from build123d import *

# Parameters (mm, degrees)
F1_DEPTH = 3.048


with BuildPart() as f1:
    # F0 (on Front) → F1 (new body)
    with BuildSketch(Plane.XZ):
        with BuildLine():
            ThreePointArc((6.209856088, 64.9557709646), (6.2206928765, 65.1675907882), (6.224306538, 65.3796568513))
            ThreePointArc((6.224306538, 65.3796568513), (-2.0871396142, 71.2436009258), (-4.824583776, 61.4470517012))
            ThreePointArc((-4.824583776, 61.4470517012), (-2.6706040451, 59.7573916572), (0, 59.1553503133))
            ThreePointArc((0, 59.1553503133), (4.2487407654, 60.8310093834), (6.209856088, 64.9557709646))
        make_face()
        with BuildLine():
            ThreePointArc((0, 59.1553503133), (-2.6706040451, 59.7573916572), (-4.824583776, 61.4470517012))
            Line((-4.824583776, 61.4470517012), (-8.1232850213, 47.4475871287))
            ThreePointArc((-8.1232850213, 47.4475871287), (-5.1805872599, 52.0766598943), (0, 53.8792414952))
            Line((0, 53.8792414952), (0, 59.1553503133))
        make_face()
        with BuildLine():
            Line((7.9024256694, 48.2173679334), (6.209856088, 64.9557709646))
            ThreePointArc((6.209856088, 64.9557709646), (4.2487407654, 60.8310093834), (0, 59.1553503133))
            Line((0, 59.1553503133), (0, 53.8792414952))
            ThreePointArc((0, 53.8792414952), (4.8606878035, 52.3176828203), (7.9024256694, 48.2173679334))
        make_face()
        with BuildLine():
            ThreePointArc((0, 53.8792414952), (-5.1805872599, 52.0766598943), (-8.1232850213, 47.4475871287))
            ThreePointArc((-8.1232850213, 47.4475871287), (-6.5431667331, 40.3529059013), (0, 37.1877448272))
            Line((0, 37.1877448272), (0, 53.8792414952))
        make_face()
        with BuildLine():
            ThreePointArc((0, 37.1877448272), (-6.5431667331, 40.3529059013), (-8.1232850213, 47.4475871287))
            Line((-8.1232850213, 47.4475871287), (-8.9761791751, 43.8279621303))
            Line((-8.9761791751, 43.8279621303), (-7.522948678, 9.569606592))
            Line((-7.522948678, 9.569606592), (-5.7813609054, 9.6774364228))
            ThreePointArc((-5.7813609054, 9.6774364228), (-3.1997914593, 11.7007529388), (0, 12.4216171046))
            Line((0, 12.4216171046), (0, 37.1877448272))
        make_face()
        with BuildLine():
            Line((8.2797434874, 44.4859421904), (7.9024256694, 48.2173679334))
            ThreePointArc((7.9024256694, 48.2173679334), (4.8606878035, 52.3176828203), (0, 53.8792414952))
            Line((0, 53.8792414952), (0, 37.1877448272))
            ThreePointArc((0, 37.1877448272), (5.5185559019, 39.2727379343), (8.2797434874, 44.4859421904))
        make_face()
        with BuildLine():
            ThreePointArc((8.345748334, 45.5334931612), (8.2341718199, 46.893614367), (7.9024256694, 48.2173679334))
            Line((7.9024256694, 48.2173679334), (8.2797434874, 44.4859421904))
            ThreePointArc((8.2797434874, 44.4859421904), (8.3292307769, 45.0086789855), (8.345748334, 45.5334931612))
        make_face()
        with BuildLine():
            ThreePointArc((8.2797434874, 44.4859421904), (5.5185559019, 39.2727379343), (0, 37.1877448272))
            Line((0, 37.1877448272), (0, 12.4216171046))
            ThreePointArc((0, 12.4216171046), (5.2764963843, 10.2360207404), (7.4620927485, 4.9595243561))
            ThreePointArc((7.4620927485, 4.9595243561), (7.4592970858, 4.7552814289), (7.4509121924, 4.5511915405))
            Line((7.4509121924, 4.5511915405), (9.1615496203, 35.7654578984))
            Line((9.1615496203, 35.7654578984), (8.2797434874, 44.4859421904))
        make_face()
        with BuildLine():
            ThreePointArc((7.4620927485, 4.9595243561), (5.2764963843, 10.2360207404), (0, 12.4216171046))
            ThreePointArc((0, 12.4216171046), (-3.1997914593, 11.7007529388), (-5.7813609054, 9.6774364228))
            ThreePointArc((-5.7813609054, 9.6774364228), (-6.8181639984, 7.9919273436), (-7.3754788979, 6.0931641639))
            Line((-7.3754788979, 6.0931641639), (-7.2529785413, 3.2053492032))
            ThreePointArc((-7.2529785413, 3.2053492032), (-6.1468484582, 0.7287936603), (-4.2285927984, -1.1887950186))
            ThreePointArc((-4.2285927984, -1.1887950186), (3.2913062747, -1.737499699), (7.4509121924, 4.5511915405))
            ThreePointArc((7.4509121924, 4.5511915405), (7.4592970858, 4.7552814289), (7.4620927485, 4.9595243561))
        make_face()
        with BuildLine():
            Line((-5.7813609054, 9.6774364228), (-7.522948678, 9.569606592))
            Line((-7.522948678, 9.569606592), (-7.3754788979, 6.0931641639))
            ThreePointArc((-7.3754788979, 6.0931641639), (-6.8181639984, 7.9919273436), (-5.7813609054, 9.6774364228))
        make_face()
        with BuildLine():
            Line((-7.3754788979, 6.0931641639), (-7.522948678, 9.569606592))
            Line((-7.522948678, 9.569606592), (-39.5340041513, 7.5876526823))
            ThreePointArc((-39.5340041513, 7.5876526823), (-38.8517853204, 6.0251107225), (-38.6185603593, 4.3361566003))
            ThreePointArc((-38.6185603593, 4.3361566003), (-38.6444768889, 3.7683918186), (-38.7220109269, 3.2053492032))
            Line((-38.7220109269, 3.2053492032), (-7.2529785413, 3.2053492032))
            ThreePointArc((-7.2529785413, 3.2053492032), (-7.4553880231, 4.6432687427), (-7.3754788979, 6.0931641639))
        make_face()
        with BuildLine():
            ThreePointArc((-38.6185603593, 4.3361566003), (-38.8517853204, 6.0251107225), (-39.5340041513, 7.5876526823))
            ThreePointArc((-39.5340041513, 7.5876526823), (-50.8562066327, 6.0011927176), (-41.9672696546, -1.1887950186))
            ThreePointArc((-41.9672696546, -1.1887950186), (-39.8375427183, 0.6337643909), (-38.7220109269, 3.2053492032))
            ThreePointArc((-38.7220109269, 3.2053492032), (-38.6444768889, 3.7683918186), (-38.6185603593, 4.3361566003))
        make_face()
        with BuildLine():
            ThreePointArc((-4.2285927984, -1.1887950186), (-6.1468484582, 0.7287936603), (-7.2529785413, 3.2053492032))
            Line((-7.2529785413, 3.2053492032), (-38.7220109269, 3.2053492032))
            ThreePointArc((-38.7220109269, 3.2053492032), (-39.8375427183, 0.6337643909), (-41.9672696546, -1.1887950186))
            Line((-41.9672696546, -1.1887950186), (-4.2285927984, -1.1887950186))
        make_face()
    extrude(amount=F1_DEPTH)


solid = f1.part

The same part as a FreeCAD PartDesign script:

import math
import FreeCAD as App
import Part
import Sketcher

V = App.Vector
Q = App.Units.Quantity

doc = App.newDocument("Part")
body = doc.addObject("PartDesign::Body", "Body")

sketch1 = body.newObject("Sketcher::SketchObject", "Sketch")
sketch1.AttachmentSupport = (doc.getObject("XZ_Plane"), [""])
sketch1.MapMode = "FlatFace"
sketch1.addGeometry(Part.ArcOfCircle(Part.Circle(V(-44.850655, 4.336157, 0), V(0, 0, 1), 6.232094), math.radians(31.448643), math.radians(297.559345)), False)
sketch1.addGeometry(Part.LineSegment(V(-41.96727, -1.188795, 0), V(-4.228593, -1.188795, 0)), False)
sketch1.addGeometry(Part.ArcOfCircle(Part.Circle(V(0, 4.959524, 0), V(0, 0, 1), 7.462093), math.radians(-124.518793), math.radians(-3.136846)), False)
sketch1.addGeometry(Part.LineSegment(V(7.450912, 4.551192, 0), V(9.16155, 35.765458, 0)), False)
sketch1.addGeometry(Part.LineSegment(V(9.16155, 35.765458, 0), V(8.279743, 44.485942, 0)), False)
sketch1.addGeometry(Part.ArcOfCircle(Part.Circle(V(0, 45.533493, 0), V(0, 0, 1), 8.345748), math.radians(-7.210735), math.radians(0)), False)
sketch1.addGeometry(Part.ArcOfCircle(Part.Circle(V(0, 45.533493, 0), V(0, 0, 1), 8.345748), math.radians(0), math.radians(18.758859)), False)
sketch1.addGeometry(Part.LineSegment(V(7.902426, 48.217368, 0), V(6.209856, 64.955771, 0)), False)
sketch1.addGeometry(Part.ArcOfCircle(Part.Circle(V(0, 65.379657, 0), V(0, 0, 1), 6.224307), math.radians(-3.904963), math.radians(0)), False)
sketch1.addGeometry(Part.ArcOfCircle(Part.Circle(V(0, 65.379657, 0), V(0, 0, 1), 6.224307), math.radians(0), math.radians(219.184097)), False)
sketch1.addGeometry(Part.LineSegment(V(-4.824584, 61.447052, 0), V(-8.123285, 47.447587, 0)), False)
sketch1.addGeometry(Part.LineSegment(V(-8.123285, 47.447587, 0), V(-8.976179, 43.827962, 0)), False)
sketch1.addGeometry(Part.LineSegment(V(-8.976179, 43.827962, 0), V(-7.522949, 9.569607, 0)), False)
sketch1.addGeometry(Part.LineSegment(V(-7.522949, 9.569607, 0), V(-39.534004, 7.587653, 0)), False)
sketch1.addGeometry(Part.LineSegment(V(-7.375479, 6.093164, 0), V(-7.252979, 3.205349, 0)), False)
sketch1.addGeometry(Part.ArcOfCircle(Part.Circle(V(0, 4.959524, 0), V(0, 0, 1), 7.462093), math.radians(171.2618), math.radians(193.596231)), False)
sketch1.addConstraint(Sketcher.Constraint("Coincident", 0, 2, 1, 1))
sketch1.addConstraint(Sketcher.Constraint("Coincident", 1, 2, 2, 1))
sketch1.addConstraint(Sketcher.Constraint("Coincident", 2, 2, 3, 1))
sketch1.addConstraint(Sketcher.Constraint("Coincident", 3, 2, 4, 1))
sketch1.addConstraint(Sketcher.Constraint("Coincident", 4, 2, 5, 1))
sketch1.addConstraint(Sketcher.Constraint("Coincident", 5, 2, 6, 1))
sketch1.addConstraint(Sketcher.Constraint("Coincident", 6, 2, 7, 1))
sketch1.addConstraint(Sketcher.Constraint("Coincident", 7, 2, 8, 1))
sketch1.addConstraint(Sketcher.Constraint("Coincident", 8, 2, 9, 1))
sketch1.addConstraint(Sketcher.Constraint("Coincident", 9, 2, 10, 1))
sketch1.addConstraint(Sketcher.Constraint("Coincident", 10, 2, 11, 1))
sketch1.addConstraint(Sketcher.Constraint("Coincident", 11, 2, 12, 1))
sketch1.addConstraint(Sketcher.Constraint("Coincident", 12, 2, 13, 1))
sketch1.addConstraint(Sketcher.Constraint("Coincident", 13, 2, 0, 1))
sketch1.addConstraint(Sketcher.Constraint("Coincident", 14, 1, 15, 1))
sketch1.addConstraint(Sketcher.Constraint("Coincident", 15, 2, 14, 2))
sketch1.addConstraint(Sketcher.Constraint("Horizontal", 1))
sketch1.addConstraint(Sketcher.Constraint("Coincident", 6, 3, 5, 3))
sketch1.addConstraint(Sketcher.Constraint("Coincident", 9, 3, 8, 3))
sketch1.addConstraint(Sketcher.Constraint("Coincident", 15, 3, 2, 3))
sketch1.addConstraint(Sketcher.Constraint("PointOnObject", 2, 3, -2))
sketch1.addConstraint(Sketcher.Constraint("PointOnObject", 5, 3, -2))
sketch1.addConstraint(Sketcher.Constraint("PointOnObject", 8, 3, -2))
sketch1.addConstraint(Sketcher.Constraint("Radius", 5, 8.345748))
sketch1.addConstraint(Sketcher.Constraint("Radius", 0, 6.232094))
sketch1.addConstraint(Sketcher.Constraint("Radius", 2, 7.462093))
sketch1.addConstraint(Sketcher.Constraint("Radius", 8, 6.224307))
sketch1.addConstraint(Sketcher.Constraint("Radius", 15, 7.462093))
sketch1.addConstraint(Sketcher.Constraint("DistanceY", 0, 3, 8, 3, 61.0435))
sketch1.addConstraint(Sketcher.Constraint("DistanceY", 2, 2, 6, 3, 40.982302))
sketch1.addConstraint(Sketcher.Constraint("DistanceY", 3, 2, 8, 3, 29.614199))
sketch1.addConstraint(Sketcher.Constraint("DistanceX", 5, 2, 3, 2, 0.815801))
sketch1.addConstraint(Sketcher.Constraint("DistanceX", 10, 2, 9, 2, 3.298701))
sketch1.addConstraint(Sketcher.Constraint("DistanceY", 1, 2, 12, 2, 10.758402))
sketch1.addConstraint(Sketcher.Constraint("DistanceX", 12, 2, 3, 2, 16.684498))
sketch1.addConstraint(Sketcher.Constraint("DistanceX", 14, 1, 15, 2, 0.1225))
sketch1.addConstraint(Sketcher.Constraint("Distance", 7, 16.823761))
sketch1.addConstraint(Sketcher.Constraint("Distance", 11, 3.718752))
sketch1.addConstraint(Sketcher.Constraint("DistanceX", 1, 1, 1, 2, 37.738677))
sketch1.addConstraint(Sketcher.Constraint("DistanceX", 0, 2, -1, 1, 41.96727))
sketch1.addConstraint(Sketcher.Constraint("DistanceY", -1, 1, 2, 2, 4.551192))
sketch1.addConstraint(Sketcher.Constraint("DistanceY", -1, 1, 7, 2, 64.955771))
sketch1.addConstraint(Sketcher.Constraint("DistanceY", -1, 1, 9, 2, 61.447052))
sketch1.addConstraint(Sketcher.Constraint("DistanceX", 11, 2, -1, 1, 8.976179))
sketch1.addConstraint(Sketcher.Constraint("DistanceX", 14, 1, -1, 1, 7.375479))
sketch1.addConstraint(Sketcher.Constraint("DistanceY", -1, 1, 15, 2, 3.205349))
sketch1.addConstraint(Sketcher.Constraint("DistanceY", 0, 2, 0, 3, 5.524952))
sketch1.addConstraint(Sketcher.Constraint("DistanceY", 4, 2, 6, 3, 1.047551))
sketch1.addConstraint(Sketcher.Constraint("DistanceY", 4, 2, 5, 2, 1.047551))
sketch1.addConstraint(Sketcher.Constraint("DistanceY", 6, 2, 8, 2, 17.162289))
sketch1.addConstraint(Sketcher.Constraint("DistanceY", 10, 2, 6, 2, 0.769781))
sketch1.addConstraint(Sketcher.Constraint("DistanceX", 0, 3, 13, 2, 5.316651))
pad1 = body.newObject("PartDesign::Pad", "Pad")
pad1.Profile = sketch1
pad1.Length = Q("0.12 in")

doc.recompute()
